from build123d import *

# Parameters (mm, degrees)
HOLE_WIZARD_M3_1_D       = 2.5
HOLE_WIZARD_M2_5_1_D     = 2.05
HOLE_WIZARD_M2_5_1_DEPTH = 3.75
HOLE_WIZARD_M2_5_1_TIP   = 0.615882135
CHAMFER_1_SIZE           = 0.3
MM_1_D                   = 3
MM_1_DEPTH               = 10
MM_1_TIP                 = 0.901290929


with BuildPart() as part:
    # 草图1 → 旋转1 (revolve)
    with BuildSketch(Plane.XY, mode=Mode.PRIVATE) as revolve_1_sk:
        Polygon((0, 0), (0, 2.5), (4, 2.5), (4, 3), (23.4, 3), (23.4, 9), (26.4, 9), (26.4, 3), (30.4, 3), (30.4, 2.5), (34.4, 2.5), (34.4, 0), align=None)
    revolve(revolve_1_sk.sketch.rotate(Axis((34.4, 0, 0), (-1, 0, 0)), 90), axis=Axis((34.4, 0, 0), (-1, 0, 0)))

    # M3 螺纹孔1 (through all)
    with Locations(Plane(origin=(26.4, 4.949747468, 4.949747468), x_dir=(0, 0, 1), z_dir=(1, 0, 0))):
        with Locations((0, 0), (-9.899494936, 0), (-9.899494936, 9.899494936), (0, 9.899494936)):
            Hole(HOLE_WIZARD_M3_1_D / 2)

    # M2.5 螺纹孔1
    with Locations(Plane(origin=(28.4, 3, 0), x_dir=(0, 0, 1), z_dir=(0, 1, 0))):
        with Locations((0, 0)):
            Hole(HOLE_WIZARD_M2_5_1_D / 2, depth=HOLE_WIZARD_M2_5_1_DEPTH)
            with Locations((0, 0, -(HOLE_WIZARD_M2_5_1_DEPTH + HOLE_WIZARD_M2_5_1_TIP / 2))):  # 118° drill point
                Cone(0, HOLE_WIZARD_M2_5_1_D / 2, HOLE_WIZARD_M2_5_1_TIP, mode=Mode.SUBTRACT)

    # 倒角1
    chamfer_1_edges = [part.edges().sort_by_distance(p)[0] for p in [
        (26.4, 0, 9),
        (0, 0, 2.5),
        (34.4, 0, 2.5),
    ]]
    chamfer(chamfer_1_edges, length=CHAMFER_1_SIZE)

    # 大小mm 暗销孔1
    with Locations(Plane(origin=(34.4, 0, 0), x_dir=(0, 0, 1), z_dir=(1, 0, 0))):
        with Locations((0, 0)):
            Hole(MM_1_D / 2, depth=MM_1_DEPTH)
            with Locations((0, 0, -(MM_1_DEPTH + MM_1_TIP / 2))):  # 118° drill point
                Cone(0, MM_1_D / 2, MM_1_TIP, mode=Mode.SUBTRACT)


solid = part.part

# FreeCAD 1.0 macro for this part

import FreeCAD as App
import Part
import Sketcher
Q = App.Units.Quantity


def edges_at(feature, points):
    """Names of the edges that pass closest to the given points."""
    edges = feature.Shape.Edges
    near = lambda p: min(range(len(edges)), key=lambda i: edges[i].distToShape(Part.Vertex(*p))[0])
    return sorted({f"Edge{near(p) + 1}" for p in points})


def add_polygon(sketch, points):
    """Adds a closed chain of lines whose ends are joined by coincident constraints."""
    first, n = sketch.GeometryCount, len(points)
    for a, b in zip(points, points[1:] + points[:1]):
        sketch.addGeometry(Part.LineSegment(App.Vector(*a, 0), App.Vector(*b, 0)), False)
    for i in range(n):
        sketch.addConstraint(Sketcher.Constraint("Coincident", first + i, 2, first + (i + 1) % n, 1))

doc = App.newDocument("Part")
body = doc.addObject("PartDesign::Body", "Body")

# Sketch on XY plane
sketch1 = body.newObject("Sketcher::SketchObject", "Sketch")
sketch1.AttachmentSupport = (doc.getObject("XY_Plane"), [""])
sketch1.MapMode = "FlatFace"
add_polygon(sketch1, [(0, 2.5), (0, 0), (34.4, 0), (34.4, 2.5), (30.4, 2.5), (30.4, 3), (26.4, 3), (26.4, 9), (23.4, 9), (23.4, 3), (4, 3), (4, 2.5)])  # lines 0-11
sketch1.addConstraint([
    Sketcher.Constraint("Vertical", 0),
    Sketcher.Constraint("Horizontal", 1),
    Sketcher.Constraint("Vertical", 2),
    Sketcher.Constraint("Horizontal", 3),
    Sketcher.Constraint("Vertical", 4),
    Sketcher.Constraint("Horizontal", 5),
    Sketcher.Constraint("Vertical", 6),
    Sketcher.Constraint("Horizontal", 7),
    Sketcher.Constraint("Vertical", 8),
    Sketcher.Constraint("Horizontal", 9),
    Sketcher.Constraint("Vertical", 10),
    Sketcher.Constraint("Horizontal", 11),
    Sketcher.Constraint("Coincident", 0, 2, -1, 1),
    Sketcher.Constraint("Horizontal", 5, 2, 8, 2),
    Sketcher.Constraint("Horizontal", 3, 2, 10, 2),
    Sketcher.Constraint("Equal", 3, 5),
    Sketcher.Constraint("Equal", 5, 11),
    Sketcher.Constraint("DistanceX", 3, 2, 3, 1, Q("4 mm")),
    Sketcher.Constraint("DistanceX", 7, 2, 7, 1, Q("3 mm")),
    Sketcher.Constraint("DistanceY", 6, 1, 6, 2, Q("6 mm")),
    Sketcher.Constraint("DistanceX", 1, 1, 1, 2, Q("34.4 mm")),
    Sketcher.Constraint("DistanceY", 0, 2, 0, 1, Q("2.5 mm")),
    Sketcher.Constraint("DistanceY", 4, 1, 4, 2, Q("0.5 mm")),
])
revolution = body.newObject("PartDesign::Revolution", "Revolution")
revolution.Profile = sketch1
revolution.ReferenceAxis = (sketch1, ["H_Axis"])
revolution.Angle = 360

# Sketch on YZ plane
sketch2 = body.newObject("Sketcher::SketchObject", "Sketch001")
sketch2.AttachmentSupport = (doc.getObject("YZ_Plane"), [""])
sketch2.MapMode = "FlatFace"
sketch2.AttachmentOffset = App.Placement(App.Vector(0, 0, 26.4), App.Rotation())
sketch2.addGeometry([
    Part.Circle(App.Vector(4.9, 4.9, 0), App.Vector(0, 0, 1), 1.2),
    Part.Circle(App.Vector(4.9, -4.9, 0), App.Vector(0, 0, 1), 1.2),
    Part.Circle(App.Vector(-4.9, -4.9, 0), App.Vector(0, 0, 1), 1.2),
    Part.Circle(App.Vector(-4.9, 4.9, 0), App.Vector(0, 0, 1), 1.2),
], False)
sketch2.addConstraint([
    Sketcher.Constraint("Equal", 0, 1),
    Sketcher.Constraint("Equal", 1, 2),
    Sketcher.Constraint("Equal", 2, 3),
    Sketcher.Constraint("Symmetric", 0, 3, 2, 3, -1, 1),
    Sketcher.Constraint("Symmetric", 1, 3, 3, 3, -1, 1),
    Sketcher.Constraint("Symmetric", 1, 3, 2, 3, -2),
    Sketcher.Constraint("Diameter", 0, Q("2.5 mm")),
    Sketcher.Constraint("DistanceX", -1, 1, 0, 3, Q("4.949747 mm")),
    Sketcher.Constraint("DistanceY", -1, 1, 0, 3, Q("4.949747 mm")),
])
doc.recompute()
hole = body.newObject("PartDesign::Hole", "Hole")
hole.Profile = sketch2
hole.ThreadType = "None"
hole.Diameter = 2.5
hole.DepthType = "ThroughAll"

# Sketch on XZ plane
sketch3 = body.newObject("Sketcher::SketchObject", "Sketch002")
sketch3.AttachmentSupport = (doc.getObject("XZ_Plane"), [""])
sketch3.MapMode = "FlatFace"
sketch3.AttachmentOffset = App.Placement(App.Vector(0, 0, -3), App.Rotation())
sketch3.addGeometry(Part.Circle(App.Vector(28.4, 0, 0), App.Vector(0, 0, 1), 1), False)
sketch3.addConstraint([
    Sketcher.Constraint("PointOnObject", 0, 3, -1),
    Sketcher.Constraint("Diameter", 0, Q("2.05 mm")),
    Sketcher.Constraint("DistanceX", -1, 1, 0, 3, Q("28.4 mm")),
])
doc.recompute()
hole2 = body.newObject("PartDesign::Hole", "Hole001")
hole2.Profile = sketch3
hole2.ThreadType = "None"
hole2.Diameter = 2.05
hole2.DepthType = "Dimension"
hole2.Depth = 3.75
hole2.DrillPoint = "Angled"
hole2.DrillPointAngle = 118
hole2.Reversed = True
doc.recompute()

chamfer = body.newObject("PartDesign::Chamfer", "Chamfer")
chamfer.Base = (hole2, edges_at(hole2, [(26.4, 0, 9), (0, 0, 2.5), (34.4, 0, 2.5)]))
chamfer.Size = 0.3

# Sketch on YZ plane
sketch4 = body.newObject("Sketcher::SketchObject", "Sketch003")
sketch4.AttachmentSupport = (doc.getObject("YZ_Plane"), [""])
sketch4.MapMode = "FlatFace"
sketch4.AttachmentOffset = App.Placement(App.Vector(0, 0, 34.4), App.Rotation())
sketch4.addGeometry(Part.Circle(App.Vector(0, 0, 0), App.Vector(0, 0, 1), 1.5), False)
sketch4.addConstraint([
    Sketcher.Constraint("Coincident", 0, 3, -1, 1),
    Sketcher.Constraint("Diameter", 0, Q("3 mm")),
])
doc.recompute()
hole3 = body.newObject("PartDesign::Hole", "Hole002")
hole3.Profile = sketch4
hole3.ThreadType = "None"
hole3.Diameter = 3
hole3.DepthType = "Dimension"
hole3.Depth = 10
hole3.DrillPoint = "Angled"
hole3.DrillPointAngle = 118

doc.recompute()
